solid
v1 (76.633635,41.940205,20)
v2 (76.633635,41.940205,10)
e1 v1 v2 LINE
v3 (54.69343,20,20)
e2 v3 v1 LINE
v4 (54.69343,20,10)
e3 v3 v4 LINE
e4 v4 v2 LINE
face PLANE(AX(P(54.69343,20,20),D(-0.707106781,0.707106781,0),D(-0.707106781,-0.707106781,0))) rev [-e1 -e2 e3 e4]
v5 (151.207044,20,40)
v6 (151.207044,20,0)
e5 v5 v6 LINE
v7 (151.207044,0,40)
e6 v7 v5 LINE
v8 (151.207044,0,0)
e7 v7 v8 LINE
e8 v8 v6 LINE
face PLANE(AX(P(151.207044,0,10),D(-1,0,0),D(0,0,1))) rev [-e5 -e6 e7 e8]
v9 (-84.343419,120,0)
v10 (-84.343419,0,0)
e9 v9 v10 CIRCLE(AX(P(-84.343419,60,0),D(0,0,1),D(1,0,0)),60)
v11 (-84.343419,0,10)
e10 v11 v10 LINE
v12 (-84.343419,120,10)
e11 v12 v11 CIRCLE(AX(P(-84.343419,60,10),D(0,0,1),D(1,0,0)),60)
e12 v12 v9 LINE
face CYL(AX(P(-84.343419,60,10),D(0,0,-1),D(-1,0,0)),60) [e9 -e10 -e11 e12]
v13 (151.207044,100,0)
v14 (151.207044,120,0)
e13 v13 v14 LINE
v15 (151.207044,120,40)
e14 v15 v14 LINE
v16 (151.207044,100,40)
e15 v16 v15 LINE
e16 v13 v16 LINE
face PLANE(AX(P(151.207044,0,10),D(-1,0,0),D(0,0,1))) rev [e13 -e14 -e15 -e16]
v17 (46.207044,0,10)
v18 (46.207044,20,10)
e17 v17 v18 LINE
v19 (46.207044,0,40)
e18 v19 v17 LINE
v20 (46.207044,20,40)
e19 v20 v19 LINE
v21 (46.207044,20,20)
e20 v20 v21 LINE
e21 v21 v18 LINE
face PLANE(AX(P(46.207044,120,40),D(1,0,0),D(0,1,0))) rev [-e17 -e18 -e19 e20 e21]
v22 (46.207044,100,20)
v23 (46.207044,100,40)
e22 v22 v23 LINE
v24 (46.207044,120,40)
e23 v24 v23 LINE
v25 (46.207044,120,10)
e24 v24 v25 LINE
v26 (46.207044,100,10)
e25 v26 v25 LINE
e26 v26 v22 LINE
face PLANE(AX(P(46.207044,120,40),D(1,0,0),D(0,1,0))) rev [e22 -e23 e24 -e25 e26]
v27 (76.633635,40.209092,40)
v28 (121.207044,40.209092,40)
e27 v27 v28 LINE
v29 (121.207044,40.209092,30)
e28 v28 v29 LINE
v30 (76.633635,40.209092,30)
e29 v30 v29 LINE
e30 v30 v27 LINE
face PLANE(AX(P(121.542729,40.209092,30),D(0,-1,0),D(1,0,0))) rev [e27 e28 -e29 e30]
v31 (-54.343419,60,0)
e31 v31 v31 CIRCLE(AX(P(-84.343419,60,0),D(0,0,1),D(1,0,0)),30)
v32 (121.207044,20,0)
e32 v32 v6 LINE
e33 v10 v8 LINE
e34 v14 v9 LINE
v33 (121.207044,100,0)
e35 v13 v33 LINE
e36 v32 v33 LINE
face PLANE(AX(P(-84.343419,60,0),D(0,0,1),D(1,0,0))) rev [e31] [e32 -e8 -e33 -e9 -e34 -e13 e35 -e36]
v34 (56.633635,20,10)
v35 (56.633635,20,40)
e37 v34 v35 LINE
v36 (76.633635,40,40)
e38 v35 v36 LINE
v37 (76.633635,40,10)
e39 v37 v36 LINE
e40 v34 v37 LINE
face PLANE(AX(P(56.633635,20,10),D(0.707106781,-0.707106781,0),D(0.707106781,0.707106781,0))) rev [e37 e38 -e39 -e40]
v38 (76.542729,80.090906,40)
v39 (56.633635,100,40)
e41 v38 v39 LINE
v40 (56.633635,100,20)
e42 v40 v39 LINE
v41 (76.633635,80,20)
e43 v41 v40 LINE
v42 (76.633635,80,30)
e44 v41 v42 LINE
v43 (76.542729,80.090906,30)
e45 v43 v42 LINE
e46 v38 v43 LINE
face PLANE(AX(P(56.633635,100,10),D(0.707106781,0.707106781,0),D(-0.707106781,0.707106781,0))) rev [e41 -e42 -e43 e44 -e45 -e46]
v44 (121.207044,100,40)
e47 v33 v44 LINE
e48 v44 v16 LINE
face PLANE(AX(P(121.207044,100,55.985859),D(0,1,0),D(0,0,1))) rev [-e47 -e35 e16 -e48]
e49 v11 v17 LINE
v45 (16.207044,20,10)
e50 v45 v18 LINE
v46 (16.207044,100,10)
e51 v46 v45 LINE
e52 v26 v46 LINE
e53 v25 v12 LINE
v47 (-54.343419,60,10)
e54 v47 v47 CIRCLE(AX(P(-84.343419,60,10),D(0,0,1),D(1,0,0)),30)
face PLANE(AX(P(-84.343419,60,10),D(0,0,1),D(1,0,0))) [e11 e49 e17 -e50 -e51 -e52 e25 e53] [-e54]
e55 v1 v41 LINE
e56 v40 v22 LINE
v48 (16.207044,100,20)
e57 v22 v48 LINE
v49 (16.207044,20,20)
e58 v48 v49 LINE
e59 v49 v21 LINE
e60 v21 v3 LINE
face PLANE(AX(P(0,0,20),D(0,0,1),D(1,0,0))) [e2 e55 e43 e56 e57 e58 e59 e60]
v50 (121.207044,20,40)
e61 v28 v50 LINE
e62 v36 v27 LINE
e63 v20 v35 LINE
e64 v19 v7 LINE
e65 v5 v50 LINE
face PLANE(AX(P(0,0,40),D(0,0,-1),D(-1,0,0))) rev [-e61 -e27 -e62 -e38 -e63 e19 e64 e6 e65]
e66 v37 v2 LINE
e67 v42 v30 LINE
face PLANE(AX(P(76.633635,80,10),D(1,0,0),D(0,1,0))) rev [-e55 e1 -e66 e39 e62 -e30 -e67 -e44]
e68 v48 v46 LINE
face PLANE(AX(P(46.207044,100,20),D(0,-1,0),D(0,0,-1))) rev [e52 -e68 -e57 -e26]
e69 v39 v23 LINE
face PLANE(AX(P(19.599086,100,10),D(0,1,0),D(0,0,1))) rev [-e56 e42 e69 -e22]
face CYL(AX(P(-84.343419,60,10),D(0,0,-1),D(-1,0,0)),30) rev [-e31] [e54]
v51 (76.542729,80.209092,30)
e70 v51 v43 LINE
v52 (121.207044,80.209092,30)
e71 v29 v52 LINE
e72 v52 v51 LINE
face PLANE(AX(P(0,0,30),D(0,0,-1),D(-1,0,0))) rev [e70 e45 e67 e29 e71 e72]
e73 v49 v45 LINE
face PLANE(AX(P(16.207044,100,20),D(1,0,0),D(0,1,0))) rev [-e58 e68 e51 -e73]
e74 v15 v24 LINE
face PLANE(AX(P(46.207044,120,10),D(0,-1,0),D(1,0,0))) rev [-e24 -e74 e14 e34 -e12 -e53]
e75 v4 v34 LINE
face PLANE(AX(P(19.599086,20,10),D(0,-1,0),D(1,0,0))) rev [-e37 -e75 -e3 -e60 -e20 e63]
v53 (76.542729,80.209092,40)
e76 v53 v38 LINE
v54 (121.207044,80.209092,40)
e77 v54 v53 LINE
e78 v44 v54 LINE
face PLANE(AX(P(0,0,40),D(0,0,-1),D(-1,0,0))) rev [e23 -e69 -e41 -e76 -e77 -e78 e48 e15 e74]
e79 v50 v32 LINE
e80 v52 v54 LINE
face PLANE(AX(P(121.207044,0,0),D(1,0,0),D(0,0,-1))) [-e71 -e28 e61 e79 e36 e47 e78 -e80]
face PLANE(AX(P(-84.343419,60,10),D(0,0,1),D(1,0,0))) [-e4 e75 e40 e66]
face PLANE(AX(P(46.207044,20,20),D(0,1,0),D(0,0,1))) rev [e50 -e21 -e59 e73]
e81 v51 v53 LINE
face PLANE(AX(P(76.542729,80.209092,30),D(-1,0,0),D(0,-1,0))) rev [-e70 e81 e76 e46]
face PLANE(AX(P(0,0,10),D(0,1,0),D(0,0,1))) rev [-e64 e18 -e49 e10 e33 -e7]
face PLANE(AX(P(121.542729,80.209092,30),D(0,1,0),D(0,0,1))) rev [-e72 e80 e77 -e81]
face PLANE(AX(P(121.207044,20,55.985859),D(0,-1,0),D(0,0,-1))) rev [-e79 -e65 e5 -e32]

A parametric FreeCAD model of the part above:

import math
import FreeCAD as App
import Part
import Sketcher
from FreeCAD import Vector
Q = App.Units.Quantity


def add_polygon(sketch, points):
    """Adds a closed chain of lines whose ends are joined by coincident constraints."""
    first, n = sketch.GeometryCount, len(points)
    for a, b in zip(points, points[1:] + points[:1]):
        sketch.addGeometry(Part.LineSegment(App.Vector(*a, 0), App.Vector(*b, 0)), False)
    for i in range(n):
        sketch.addConstraint(Sketcher.Constraint("Coincident", first + i, 2, first + (i + 1) % n, 1))

doc = App.newDocument("Part")
body = doc.addObject("PartDesign::Body", "Body")

sketch1 = doc.addObject("Sketcher::SketchObject", "Sketch")
body.addObject(sketch1)
sketch1.AttachmentSupport = (doc.XY_Plane, [""])
sketch1.MapMode = "FlatFace"
sketch1.addGeometry(Part.ArcOfCircle(Part.Circle(Vector(-84, 60, 0), Vector(0, 0, 1), 60), math.radians(90), math.radians(270)), False)
sketch1.addGeometry(Part.LineSegment(Vector(-84, 0, 0), Vector(151, 0, 0)), False)
sketch1.addGeometry(Part.LineSegment(Vector(151, 0, 0), Vector(151, 120, 0)), False)
sketch1.addGeometry(Part.LineSegment(Vector(151, 120, 0), Vector(-84, 120, 0)), False)
sketch1.addGeometry(Part.Circle(Vector(-84, 60, 0), Vector(0, 0, 1), 30), False)
sketch1.addConstraint(Sketcher.Constraint("Tangent", 0, 2, 1, 1))
sketch1.addConstraint(Sketcher.Constraint("Coincident", 1, 2, 2, 1))
sketch1.addConstraint(Sketcher.Constraint("Coincident", 2, 2, 3, 1))
sketch1.addConstraint(Sketcher.Constraint("Tangent", 3, 2, 0, 1))
sketch1.addConstraint(Sketcher.Constraint("Horizontal", 1))
sketch1.addConstraint(Sketcher.Constraint("Vertical", 2))
sketch1.addConstraint(Sketcher.Constraint("Horizontal", 3))
sketch1.addConstraint(Sketcher.Constraint("Coincident", 4, 3, 0, 3))
sketch1.addConstraint(Sketcher.Constraint("PointOnObject", 0, 2, -1))
sketch1.addConstraint(Sketcher.Constraint("Diameter", 4, Q("60 mm")))
sketch1.addConstraint(Sketcher.Constraint("Radius", 0, Q("60 mm")))
sketch1.addConstraint(Sketcher.Constraint("DistanceX", 1, 1, 1, 2, Q("235.550463 mm")))
sketch1.addConstraint(Sketcher.Constraint("DistanceX", 0, 3, -1, 1, Q("84.343419 mm")))
pad1 = doc.addObject("PartDesign::Pad", "Pad")
body.addObject(pad1)
pad1.Profile = sketch1
pad1.Length = 10

sketch2 = doc.addObject("Sketcher::SketchObject", "Sketch001")
body.addObject(sketch2)
sketch2.AttachmentSupport = (doc.YZ_Plane, [""])
sketch2.MapMode = "FlatFace"
sketch2.AttachmentOffset = App.Placement(Vector(0, 0, 151.207044), App.Rotation())
add_polygon(sketch2, [(100, 21), (20, 21), (20, -18), (100, -18)])
sketch2.addConstraint(Sketcher.Constraint("Horizontal", 0))
sketch2.addConstraint(Sketcher.Constraint("Vertical", 1))
sketch2.addConstraint(Sketcher.Constraint("Horizontal", 2))
sketch2.addConstraint(Sketcher.Constraint("Vertical", 3))
sketch2.addConstraint(Sketcher.Constraint("DistanceX", 0, 2, 0, 1, Q("80 mm")))
sketch2.addConstraint(Sketcher.Constraint("DistanceX", -1, 1, 0, 2, Q("20 mm")))
sketch2.addConstraint(Sketcher.Constraint("DistanceY", 1, 2, 1, 1, Q("39.744106 mm")))
sketch2.addConstraint(Sketcher.Constraint("DistanceY", -1, 1, 0, 2, Q("21.295349 mm")))
pocket1 = doc.addObject("PartDesign::Pocket", "Pocket")
body.addObject(pocket1)
pocket1.Profile = sketch2
pocket1.Length = 30

sketch3 = doc.addObject("Sketcher::SketchObject", "Sketch002")
body.addObject(sketch3)
sketch3.AttachmentSupport = (doc.XY_Plane, [""])
sketch3.MapMode = "FlatFace"
add_polygon(sketch3, [(46, 120), (46, 0), (151, 0), (151, 120)])
sketch3.addConstraint(Sketcher.Constraint("Vertical", 0))
sketch3.addConstraint(Sketcher.Constraint("Horizontal", 1))
sketch3.addConstraint(Sketcher.Constraint("Vertical", 2))
sketch3.addConstraint(Sketcher.Constraint("Horizontal", 3))
sketch3.addConstraint(Sketcher.Constraint("PointOnObject", 0, 2, -1))
sketch3.addConstraint(Sketcher.Constraint("DistanceX", 1, 1, 1, 2, Q("105 mm")))
sketch3.addConstraint(Sketcher.Constraint("DistanceY", 0, 2, 0, 1, Q("120 mm")))
sketch3.addConstraint(Sketcher.Constraint("DistanceX", -1, 1, 0, 2, Q("46.207044 mm")))
pad2 = doc.addObject("PartDesign::Pad", "Pad001")
body.addObject(pad2)
pad2.Profile = sketch3
pad2.Length = 40

sketch4 = doc.addObject("Sketcher::SketchObject", "Sketch003")
body.addObject(sketch4)
sketch4.AttachmentSupport = (doc.YZ_Plane, [""])
sketch4.MapMode = "FlatFace"
sketch4.AttachmentOffset = App.Placement(Vector(0, 0, 151.207044), App.Rotation())
add_polygon(sketch4, [(100, 56), (20, 56), (20, -22), (100, -22)])
sketch4.addConstraint(Sketcher.Constraint("Horizontal", 0))
sketch4.addConstraint(Sketcher.Constraint("Vertical", 1))
sketch4.addConstraint(Sketcher.Constraint("Horizontal", 2))
sketch4.addConstraint(Sketcher.Constraint("Vertical", 3))
sketch4.addConstraint(Sketcher.Constraint("DistanceX", 0, 2, 0, 1, Q("80 mm")))
sketch4.addConstraint(Sketcher.Constraint("DistanceX", -1, 1, 0, 2, Q("20 mm")))
sketch4.addConstraint(Sketcher.Constraint("DistanceY", 1, 2, 1, 1, Q("78.106225 mm")))
sketch4.addConstraint(Sketcher.Constraint("DistanceY", -1, 1, 0, 2, Q("55.985859 mm")))
pocket2 = doc.addObject("PartDesign::Pocket", "Pocket001")
body.addObject(pocket2)
pocket2.Profile = sketch4
pocket2.Length = 30

sketch5 = doc.addObject("Sketcher::SketchObject", "Sketch004")
body.addObject(sketch5)
sketch5.AttachmentSupport = (doc.XY_Plane, [""])
sketch5.MapMode = "FlatFace"
sketch5.AttachmentOffset = App.Placement(Vector(0, 0, 40), App.Rotation())
add_polygon(sketch5, [(77, 80), (77, 40), (122, 40), (122, 80)])
sketch5.addConstraint(Sketcher.Constraint("Vertical", 0))
sketch5.addConstraint(Sketcher.Constraint("Horizontal", 1))
sketch5.addConstraint(Sketcher.Constraint("Vertical", 2))
sketch5.addConstraint(Sketcher.Constraint("Horizontal", 3))
sketch5.addConstraint(Sketcher.Constraint("DistanceX", 1, 1, 1, 2, Q("45 mm")))
sketch5.addConstraint(Sketcher.Constraint("DistanceY", 0, 2, 0, 1, Q("40 mm")))
sketch5.addConstraint(Sketcher.Constraint("DistanceX", -1, 1, 0, 2, Q("76.542729 mm")))
sketch5.addConstraint(Sketcher.Constraint("DistanceY", -1, 1, 0, 2, Q("40.209092 mm")))
pocket3 = doc.addObject("PartDesign::Pocket", "Pocket002")
body.addObject(pocket3)
pocket3.Profile = sketch5
pocket3.Length = 10

sketch6 = doc.addObject("Sketcher::SketchObject", "Sketch005")
body.addObject(sketch6)
sketch6.AttachmentSupport = (doc.XY_Plane, [""])
sketch6.MapMode = "FlatFace"
sketch6.AttachmentOffset = App.Placement(Vector(0, 0, 40), App.Rotation())
add_polygon(sketch6, [(57, 100), (20, 100), (20, 20), (57, 20), (77, 40), (77, 80)])
sketch6.addConstraint(Sketcher.Constraint("Horizontal", 0))
sketch6.addConstraint(Sketcher.Constraint("Vertical", 1))
sketch6.addConstraint(Sketcher.Constraint("Horizontal", 2))
sketch6.addConstraint(Sketcher.Constraint("Vertical", 4))
sketch6.addConstraint(Sketcher.Constraint("Perpendicular", 3, 5))
sketch6.addConstraint(Sketcher.Constraint("Vertical", 2, 2, 5, 2))
sketch6.addConstraint(Sketcher.Constraint("Equal", 3, 5))
sketch6.addConstraint(Sketcher.Constraint("DistanceY", 1, 2, 1, 1, Q("80 mm")))
sketch6.addConstraint(Sketcher.Constraint("DistanceY", 4, 1, 4, 2, Q("40 mm")))
sketch6.addConstraint(Sketcher.Constraint("DistanceY", -1, 1, 0, 2, Q("100 mm")))
sketch6.addConstraint(Sketcher.Constraint("DistanceX", 0, 2, 0, 1, Q("37.034549 mm")))
sketch6.addConstraint(Sketcher.Constraint("DistanceX", -1, 1, 0, 2, Q("19.599086 mm")))
pocket4 = doc.addObject("PartDesign::Pocket", "Pocket003")
body.addObject(pocket4)
pocket4.Profile = sketch6
pocket4.Length = 30

sketch7 = doc.addObject("Sketcher::SketchObject", "Sketch006")
body.addObject(sketch7)
sketch7.AttachmentSupport = (doc.XY_Plane, [""])
sketch7.MapMode = "FlatFace"
sketch7.AttachmentOffset = App.Placement(Vector(0, 0, 10), App.Rotation())
add_polygon(sketch7, [(16, 100), (16, 20), (55, 20), (77, 42), (77, 80), (57, 100)])
sketch7.addConstraint(Sketcher.Constraint("Vertical", 0))
sketch7.addConstraint(Sketcher.Constraint("Horizontal", 1))
sketch7.addConstraint(Sketcher.Constraint("Vertical", 3))
sketch7.addConstraint(Sketcher.Constraint("Horizontal", 5))
sketch7.addConstraint(Sketcher.Constraint("Perpendicular", 2, 4))
sketch7.addConstraint(Sketcher.Constraint("DistanceY", 0, 2, 0, 1, Q("80 mm")))
sketch7.addConstraint(Sketcher.Constraint("Angle", 2, Q("45 deg")))
sketch7.addConstraint(Sketcher.Constraint("DistanceY", -1, 1, 0, 2, Q("20 mm")))
sketch7.addConstraint(Sketcher.Constraint("DistanceY", -1, 1, 3, 2, Q("80 mm")))
sketch7.addConstraint(Sketcher.Constraint("DistanceX", 5, 2, 5, 1, Q("40.426591 mm")))
sketch7.addConstraint(Sketcher.Constraint("DistanceX", 1, 1, 1, 2, Q("38.486386 mm")))
sketch7.addConstraint(Sketcher.Constraint("DistanceX", -1, 1, 1, 2, Q("54.69343 mm")))
pad3 = doc.addObject("PartDesign::Pad", "Pad002")
body.addObject(pad3)
pad3.Profile = sketch7
pad3.Length = 10

doc.recompute()
